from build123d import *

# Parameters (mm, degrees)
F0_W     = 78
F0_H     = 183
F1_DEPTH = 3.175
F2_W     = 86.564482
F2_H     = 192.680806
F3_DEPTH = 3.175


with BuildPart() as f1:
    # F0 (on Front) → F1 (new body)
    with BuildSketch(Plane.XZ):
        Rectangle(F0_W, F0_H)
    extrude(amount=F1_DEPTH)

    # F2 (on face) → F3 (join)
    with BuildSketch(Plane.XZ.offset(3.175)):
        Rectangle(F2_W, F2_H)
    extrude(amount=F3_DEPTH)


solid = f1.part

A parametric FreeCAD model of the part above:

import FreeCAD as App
import Part
import Sketcher

doc = App.newDocument("Part")
body = doc.addObject("PartDesign::Body", "Body")

sketch1 = body.newObject("Sketcher::SketchObject", "Sketch")
sketch1.AttachmentSupport = (doc.getObject("XZ_Plane"), [""])
sketch1.MapMode = "FlatFace"
sketch1.addGeometry(Part.LineSegment(App.Vector(-39, 91.5, 0), App.Vector(-39, -91.5, 0)), False)
sketch1.addGeometry(Part.LineSegment(App.Vector(-39, -91.5, 0), App.Vector(39, -91.5, 0)), False)
sketch1.addGeometry(Part.LineSegment(App.Vector(39, -91.5, 0), App.Vector(39, 91.5, 0)), False)
sketch1.addGeometry(Part.LineSegment(App.Vector(39, 91.5, 0), App.Vector(-39, 91.5, 0)), False)
sketch1.addConstraint(Sketcher.Constraint("Coincident", 0, 2, 1, 1))
sketch1.addConstraint(Sketcher.Constraint("Coincident", 1, 2, 2, 1))
sketch1.addConstraint(Sketcher.Constraint("Coincident", 2, 2, 3, 1))
sketch1.addConstraint(Sketcher.Constraint("Coincident", 3, 2, 0, 1))
sketch1.addConstraint(Sketcher.Constraint("Vertical", 0))
sketch1.addConstraint(Sketcher.Constraint("Horizontal", 1))
sketch1.addConstraint(Sketcher.Constraint("Vertical", 2))
sketch1.addConstraint(Sketcher.Constraint("Horizontal", 3))
sketch1.addConstraint(Sketcher.Constraint("Symmetric", 0, 2, 2, 2, -1, 1))
sketch1.addConstraint(Sketcher.Constraint("DistanceX", 1, 1, 1, 2, 78.0))
sketch1.addConstraint(Sketcher.Constraint("DistanceY", 0, 2, 0, 1, 183.0))
pad1 = body.newObject("PartDesign::Pad", "Pad")
pad1.Profile = sketch1
pad1.Length = 3.175

sketch2 = body.newObject("Sketcher::SketchObject", "Sketch001")
sketch2.AttachmentSupport = (doc.getObject("XZ_Plane"), [""])
sketch2.MapMode = "FlatFace"
sketch2.AttachmentOffset = App.Placement(App.Vector(0, 0, 3.175), App.Rotation())
sketch2.addGeometry(Part.LineSegment(App.Vector(-43.282241, 96.340403, 0), App.Vector(-43.282241, -96.340403, 0)), False)
sketch2.addGeometry(Part.LineSegment(App.Vector(-43.282241, -96.340403, 0), App.Vector(43.282241, -96.340403, 0)), False)
sketch2.addGeometry(Part.LineSegment(App.Vector(43.282241, -96.340403, 0), App.Vector(43.282241, 96.340403, 0)), False)
sketch2.addGeometry(Part.LineSegment(App.Vector(43.282241, 96.340403, 0), App.Vector(-43.282241, 96.340403, 0)), False)
sketch2.addConstraint(Sketcher.Constraint("Coincident", 0, 2, 1, 1))
sketch2.addConstraint(Sketcher.Constraint("Coincident", 1, 2, 2, 1))
sketch2.addConstraint(Sketcher.Constraint("Coincident", 2, 2, 3, 1))
sketch2.addConstraint(Sketcher.Constraint("Coincident", 3, 2, 0, 1))
sketch2.addConstraint(Sketcher.Constraint("Vertical", 0))
sketch2.addConstraint(Sketcher.Constraint("Horizontal", 1))
sketch2.addConstraint(Sketcher.Constraint("Vertical", 2))
sketch2.addConstraint(Sketcher.Constraint("Horizontal", 3))
sketch2.addConstraint(Sketcher.Constraint("Symmetric", 0, 2, 2, 2, -1, 1))
sketch2.addConstraint(Sketcher.Constraint("DistanceX", 1, 1, 1, 2, 86.564482))
sketch2.addConstraint(Sketcher.Constraint("DistanceY", 0, 2, 0, 1, 192.680806))
pad2 = body.newObject("PartDesign::Pad", "Pad001")
pad2.Profile = sketch2
pad2.Length = 3.175

doc.recompute()
